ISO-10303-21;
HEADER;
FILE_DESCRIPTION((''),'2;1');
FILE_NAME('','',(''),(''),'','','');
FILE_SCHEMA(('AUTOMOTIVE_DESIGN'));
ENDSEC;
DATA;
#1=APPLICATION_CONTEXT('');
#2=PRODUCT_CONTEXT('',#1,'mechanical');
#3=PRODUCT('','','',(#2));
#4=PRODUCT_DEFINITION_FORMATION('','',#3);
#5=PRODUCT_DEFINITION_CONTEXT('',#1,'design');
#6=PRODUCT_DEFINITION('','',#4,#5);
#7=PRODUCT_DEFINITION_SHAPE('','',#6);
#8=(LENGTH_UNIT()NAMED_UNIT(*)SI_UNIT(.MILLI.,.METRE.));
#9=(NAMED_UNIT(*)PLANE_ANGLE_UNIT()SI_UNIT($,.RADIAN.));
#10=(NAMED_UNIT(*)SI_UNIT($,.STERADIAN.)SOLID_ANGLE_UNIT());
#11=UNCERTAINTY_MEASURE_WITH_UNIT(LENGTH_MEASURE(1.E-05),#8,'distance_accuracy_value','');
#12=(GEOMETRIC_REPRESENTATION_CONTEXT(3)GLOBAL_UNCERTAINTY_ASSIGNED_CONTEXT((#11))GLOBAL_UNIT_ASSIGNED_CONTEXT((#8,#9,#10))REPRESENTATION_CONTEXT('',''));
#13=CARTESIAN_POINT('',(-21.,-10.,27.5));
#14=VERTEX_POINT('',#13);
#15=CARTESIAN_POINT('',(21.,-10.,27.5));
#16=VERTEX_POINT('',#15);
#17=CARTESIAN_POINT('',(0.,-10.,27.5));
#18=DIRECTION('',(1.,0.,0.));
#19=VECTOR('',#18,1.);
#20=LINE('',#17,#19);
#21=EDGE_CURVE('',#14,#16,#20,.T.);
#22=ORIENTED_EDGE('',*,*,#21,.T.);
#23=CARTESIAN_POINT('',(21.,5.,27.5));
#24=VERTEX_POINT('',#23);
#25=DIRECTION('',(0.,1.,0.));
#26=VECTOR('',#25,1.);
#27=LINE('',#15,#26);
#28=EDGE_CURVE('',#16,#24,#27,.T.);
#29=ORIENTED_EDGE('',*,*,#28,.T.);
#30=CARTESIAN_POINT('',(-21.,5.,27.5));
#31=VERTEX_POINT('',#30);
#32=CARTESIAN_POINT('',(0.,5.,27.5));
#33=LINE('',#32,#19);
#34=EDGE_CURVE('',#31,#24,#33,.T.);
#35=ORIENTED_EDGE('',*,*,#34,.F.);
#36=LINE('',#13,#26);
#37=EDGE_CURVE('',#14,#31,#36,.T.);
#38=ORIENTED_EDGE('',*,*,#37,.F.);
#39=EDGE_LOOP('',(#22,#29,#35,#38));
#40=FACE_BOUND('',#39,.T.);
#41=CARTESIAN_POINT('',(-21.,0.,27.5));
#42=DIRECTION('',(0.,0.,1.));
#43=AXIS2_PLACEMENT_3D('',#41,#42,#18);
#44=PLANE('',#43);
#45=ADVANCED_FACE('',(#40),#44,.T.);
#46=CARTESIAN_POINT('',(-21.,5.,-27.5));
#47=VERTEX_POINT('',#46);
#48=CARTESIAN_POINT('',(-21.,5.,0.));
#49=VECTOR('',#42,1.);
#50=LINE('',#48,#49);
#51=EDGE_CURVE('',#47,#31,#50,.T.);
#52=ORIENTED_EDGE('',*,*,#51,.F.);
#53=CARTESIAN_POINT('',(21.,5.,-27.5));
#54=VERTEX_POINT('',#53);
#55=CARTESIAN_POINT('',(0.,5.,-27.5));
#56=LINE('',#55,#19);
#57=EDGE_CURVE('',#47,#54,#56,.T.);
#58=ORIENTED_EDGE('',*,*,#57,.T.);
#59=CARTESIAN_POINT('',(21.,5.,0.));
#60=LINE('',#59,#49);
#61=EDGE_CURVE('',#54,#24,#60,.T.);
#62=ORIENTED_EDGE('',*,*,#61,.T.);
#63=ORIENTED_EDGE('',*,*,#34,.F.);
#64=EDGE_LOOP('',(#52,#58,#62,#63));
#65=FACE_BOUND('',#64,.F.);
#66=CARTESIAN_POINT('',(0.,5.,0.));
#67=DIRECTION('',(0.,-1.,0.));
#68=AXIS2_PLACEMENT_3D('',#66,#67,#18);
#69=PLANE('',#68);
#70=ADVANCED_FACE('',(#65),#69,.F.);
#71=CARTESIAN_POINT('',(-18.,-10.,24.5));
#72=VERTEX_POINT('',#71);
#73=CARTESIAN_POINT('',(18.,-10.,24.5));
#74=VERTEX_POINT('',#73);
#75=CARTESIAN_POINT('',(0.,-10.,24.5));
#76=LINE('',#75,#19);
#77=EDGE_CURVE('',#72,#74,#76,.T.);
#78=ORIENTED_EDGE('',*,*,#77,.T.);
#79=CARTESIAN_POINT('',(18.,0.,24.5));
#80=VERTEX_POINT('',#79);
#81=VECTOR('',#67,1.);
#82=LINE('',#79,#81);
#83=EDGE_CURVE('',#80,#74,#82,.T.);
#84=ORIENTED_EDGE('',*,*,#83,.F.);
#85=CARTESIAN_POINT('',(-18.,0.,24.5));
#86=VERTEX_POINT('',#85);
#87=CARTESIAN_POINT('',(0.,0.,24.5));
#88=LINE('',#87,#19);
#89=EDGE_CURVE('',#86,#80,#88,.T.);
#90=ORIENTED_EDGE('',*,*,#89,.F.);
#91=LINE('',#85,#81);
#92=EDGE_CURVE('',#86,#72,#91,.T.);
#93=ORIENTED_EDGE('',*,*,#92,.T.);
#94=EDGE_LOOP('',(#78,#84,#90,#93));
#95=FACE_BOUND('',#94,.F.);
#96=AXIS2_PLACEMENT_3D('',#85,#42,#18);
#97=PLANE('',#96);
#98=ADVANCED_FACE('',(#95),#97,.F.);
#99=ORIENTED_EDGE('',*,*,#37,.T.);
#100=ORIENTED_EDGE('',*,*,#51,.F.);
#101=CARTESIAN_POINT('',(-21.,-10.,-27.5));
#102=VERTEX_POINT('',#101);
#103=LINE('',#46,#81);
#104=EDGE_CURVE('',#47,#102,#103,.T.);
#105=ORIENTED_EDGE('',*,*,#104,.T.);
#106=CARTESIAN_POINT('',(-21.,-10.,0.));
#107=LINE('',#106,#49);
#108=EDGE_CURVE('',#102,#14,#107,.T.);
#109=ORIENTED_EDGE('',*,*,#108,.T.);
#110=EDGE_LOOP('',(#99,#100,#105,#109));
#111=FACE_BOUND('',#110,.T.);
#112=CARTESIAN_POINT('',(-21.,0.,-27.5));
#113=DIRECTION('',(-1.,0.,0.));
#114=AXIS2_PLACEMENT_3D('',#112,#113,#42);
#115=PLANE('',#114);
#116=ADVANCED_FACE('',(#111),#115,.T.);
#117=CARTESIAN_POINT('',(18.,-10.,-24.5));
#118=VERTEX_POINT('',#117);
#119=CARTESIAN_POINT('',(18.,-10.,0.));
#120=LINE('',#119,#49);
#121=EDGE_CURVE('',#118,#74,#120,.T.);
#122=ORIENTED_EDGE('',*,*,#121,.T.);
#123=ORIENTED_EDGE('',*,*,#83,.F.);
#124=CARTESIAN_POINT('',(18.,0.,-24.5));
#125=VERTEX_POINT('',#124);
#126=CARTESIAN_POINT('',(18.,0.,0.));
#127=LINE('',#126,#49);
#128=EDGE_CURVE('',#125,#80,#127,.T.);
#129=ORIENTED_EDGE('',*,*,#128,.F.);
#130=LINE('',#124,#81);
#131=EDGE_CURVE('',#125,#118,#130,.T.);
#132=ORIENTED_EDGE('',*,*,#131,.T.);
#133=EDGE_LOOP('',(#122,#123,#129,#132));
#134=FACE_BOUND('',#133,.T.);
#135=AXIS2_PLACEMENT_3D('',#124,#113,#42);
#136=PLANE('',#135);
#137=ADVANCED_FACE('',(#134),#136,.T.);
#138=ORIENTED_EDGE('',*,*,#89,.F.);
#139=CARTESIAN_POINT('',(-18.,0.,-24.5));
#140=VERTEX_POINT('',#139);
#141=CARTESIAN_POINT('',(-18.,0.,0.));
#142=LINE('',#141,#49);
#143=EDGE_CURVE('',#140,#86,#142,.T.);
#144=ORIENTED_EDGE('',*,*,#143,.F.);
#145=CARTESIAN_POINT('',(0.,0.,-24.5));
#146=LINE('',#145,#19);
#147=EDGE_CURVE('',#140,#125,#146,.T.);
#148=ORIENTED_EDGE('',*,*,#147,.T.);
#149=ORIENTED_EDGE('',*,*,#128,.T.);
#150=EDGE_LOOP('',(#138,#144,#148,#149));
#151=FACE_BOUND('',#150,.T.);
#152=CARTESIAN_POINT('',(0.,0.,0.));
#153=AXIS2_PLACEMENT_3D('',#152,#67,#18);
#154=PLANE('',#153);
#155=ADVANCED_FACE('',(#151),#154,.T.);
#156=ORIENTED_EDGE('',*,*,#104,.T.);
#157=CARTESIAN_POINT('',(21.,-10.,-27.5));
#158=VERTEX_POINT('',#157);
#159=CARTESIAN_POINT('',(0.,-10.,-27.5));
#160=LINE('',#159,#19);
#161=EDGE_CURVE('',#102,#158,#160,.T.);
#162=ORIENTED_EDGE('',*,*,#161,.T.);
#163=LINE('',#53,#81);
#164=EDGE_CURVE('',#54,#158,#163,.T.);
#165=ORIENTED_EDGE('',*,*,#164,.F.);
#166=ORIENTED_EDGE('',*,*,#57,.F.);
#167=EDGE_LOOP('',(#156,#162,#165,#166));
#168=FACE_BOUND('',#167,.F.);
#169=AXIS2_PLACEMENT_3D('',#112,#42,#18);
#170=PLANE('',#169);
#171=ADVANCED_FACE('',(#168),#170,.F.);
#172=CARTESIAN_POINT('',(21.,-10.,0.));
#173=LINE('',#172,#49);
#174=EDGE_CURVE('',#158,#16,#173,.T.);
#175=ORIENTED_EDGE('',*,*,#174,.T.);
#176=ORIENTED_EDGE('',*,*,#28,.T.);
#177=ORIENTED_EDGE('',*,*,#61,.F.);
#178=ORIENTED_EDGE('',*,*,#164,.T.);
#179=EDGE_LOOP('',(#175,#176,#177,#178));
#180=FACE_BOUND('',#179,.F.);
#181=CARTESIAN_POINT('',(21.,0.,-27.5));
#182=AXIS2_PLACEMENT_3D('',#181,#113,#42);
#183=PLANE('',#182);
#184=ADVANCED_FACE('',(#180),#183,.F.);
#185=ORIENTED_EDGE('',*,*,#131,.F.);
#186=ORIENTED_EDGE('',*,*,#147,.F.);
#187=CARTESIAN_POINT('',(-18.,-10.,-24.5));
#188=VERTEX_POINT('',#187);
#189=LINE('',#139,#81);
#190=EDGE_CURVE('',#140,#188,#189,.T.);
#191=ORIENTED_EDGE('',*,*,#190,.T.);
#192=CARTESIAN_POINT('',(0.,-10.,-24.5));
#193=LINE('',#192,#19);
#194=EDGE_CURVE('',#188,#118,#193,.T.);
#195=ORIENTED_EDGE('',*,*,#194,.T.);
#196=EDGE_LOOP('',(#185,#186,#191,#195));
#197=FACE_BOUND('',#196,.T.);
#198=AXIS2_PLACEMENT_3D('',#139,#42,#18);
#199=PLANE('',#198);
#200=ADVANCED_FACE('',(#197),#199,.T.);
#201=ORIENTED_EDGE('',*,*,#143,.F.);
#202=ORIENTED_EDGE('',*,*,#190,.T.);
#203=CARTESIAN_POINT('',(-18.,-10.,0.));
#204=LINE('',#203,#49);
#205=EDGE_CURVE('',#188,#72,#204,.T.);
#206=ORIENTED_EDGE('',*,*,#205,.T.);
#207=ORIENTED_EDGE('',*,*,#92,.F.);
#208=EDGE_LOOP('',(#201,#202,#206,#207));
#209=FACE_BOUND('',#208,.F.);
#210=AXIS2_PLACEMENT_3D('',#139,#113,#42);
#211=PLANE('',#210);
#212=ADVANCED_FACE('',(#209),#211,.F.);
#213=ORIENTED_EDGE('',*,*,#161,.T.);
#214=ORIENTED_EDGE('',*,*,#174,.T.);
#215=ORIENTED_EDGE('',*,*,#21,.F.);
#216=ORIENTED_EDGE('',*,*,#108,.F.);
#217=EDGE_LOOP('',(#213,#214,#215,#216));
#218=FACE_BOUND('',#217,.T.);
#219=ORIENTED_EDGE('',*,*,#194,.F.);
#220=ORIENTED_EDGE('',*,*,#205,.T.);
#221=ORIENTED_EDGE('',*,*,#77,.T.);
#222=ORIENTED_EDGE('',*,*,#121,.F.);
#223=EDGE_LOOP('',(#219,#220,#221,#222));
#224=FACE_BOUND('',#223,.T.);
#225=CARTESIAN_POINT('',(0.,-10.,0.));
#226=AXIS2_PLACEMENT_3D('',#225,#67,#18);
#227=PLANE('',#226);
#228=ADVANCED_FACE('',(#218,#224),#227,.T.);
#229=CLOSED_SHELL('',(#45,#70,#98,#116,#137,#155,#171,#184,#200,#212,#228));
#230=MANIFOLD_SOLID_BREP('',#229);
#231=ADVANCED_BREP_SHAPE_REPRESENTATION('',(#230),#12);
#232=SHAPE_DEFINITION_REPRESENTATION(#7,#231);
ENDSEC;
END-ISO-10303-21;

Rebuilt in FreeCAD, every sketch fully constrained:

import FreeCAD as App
import Part
import Sketcher
Q = App.Units.Quantity

doc = App.newDocument("Part")
body = doc.addObject("PartDesign::Body", "Body")

sketch1 = body.newObject("Sketcher::SketchObject", "Sketch")
sketch1.AttachmentSupport = (doc.getObject("XZ_Plane"), [""])
sketch1.MapMode = "FlatFace"
sketch1.addGeometry([
    Part.LineSegment(App.Vector(-21, 27.5, 0), App.Vector(-21, -27.5, 0)),
    Part.LineSegment(App.Vector(-21, -27.5, 0), App.Vector(21, -27.5, 0)),
    Part.LineSegment(App.Vector(21, -27.5, 0), App.Vector(21, 27.5, 0)),
    Part.LineSegment(App.Vector(21, 27.5, 0), App.Vector(-21, 27.5, 0)),
], False)
sketch1.addConstraint([
    Sketcher.Constraint("Coincident", 0, 2, 1, 1),
    Sketcher.Constraint("Coincident", 1, 2, 2, 1),
    Sketcher.Constraint("Coincident", 2, 2, 3, 1),
    Sketcher.Constraint("Coincident", 3, 2, 0, 1),
    Sketcher.Constraint("Vertical", 0),
    Sketcher.Constraint("Horizontal", 1),
    Sketcher.Constraint("Vertical", 2),
    Sketcher.Constraint("Horizontal", 3),
    Sketcher.Constraint("Symmetric", 0, 2, 2, 2, -1, 1),
    Sketcher.Constraint("DistanceX", 1, 1, 1, 2, Q("42 mm")),
    Sketcher.Constraint("DistanceY", 0, 2, 0, 1, Q("55 mm")),
])
pad1 = body.newObject("PartDesign::Pad", "Pad")
pad1.Profile = sketch1
pad1.Length = 5
pad1.Reversed = True

sketch2 = body.newObject("Sketcher::SketchObject", "Sketch001")
sketch2.AttachmentSupport = (doc.getObject("XZ_Plane"), [""])
sketch2.MapMode = "FlatFace"
sketch2.addGeometry([
    Part.LineSegment(App.Vector(-21, 27.5, 0), App.Vector(-21, -27.5, 0)),
    Part.LineSegment(App.Vector(-21, -27.5, 0), App.Vector(21, -27.5, 0)),
    Part.LineSegment(App.Vector(21, -27.5, 0), App.Vector(21, 27.5, 0)),
    Part.LineSegment(App.Vector(21, 27.5, 0), App.Vector(-21, 27.5, 0)),
    Part.LineSegment(App.Vector(18, -24.5, 0), App.Vector(-18, -24.5, 0)),
    Part.LineSegment(App.Vector(-18, -24.5, 0), App.Vector(-18, 24.5, 0)),
    Part.LineSegment(App.Vector(-18, 24.5, 0), App.Vector(18, 24.5, 0)),
    Part.LineSegment(App.Vector(18, 24.5, 0), App.Vector(18, -24.5, 0)),
], False)
sketch2.addConstraint([
    Sketcher.Constraint("Coincident", 0, 2, 1, 1),
    Sketcher.Constraint("Coincident", 1, 2, 2, 1),
    Sketcher.Constraint("Coincident", 2, 2, 3, 1),
    Sketcher.Constraint("Coincident", 3, 2, 0, 1),
    Sketcher.Constraint("Coincident", 4, 2, 5, 1),
    Sketcher.Constraint("Coincident", 5, 2, 6, 1),
    Sketcher.Constraint("Coincident", 6, 2, 7, 1),
    Sketcher.Constraint("Coincident", 7, 2, 4, 1),
    Sketcher.Constraint("Vertical", 0),
    Sketcher.Constraint("Horizontal", 1),
    Sketcher.Constraint("Vertical", 2),
    Sketcher.Constraint("Horizontal", 3),
    Sketcher.Constraint("Horizontal", 4),
    Sketcher.Constraint("Vertical", 5),
    Sketcher.Constraint("Horizontal", 6),
    Sketcher.Constraint("Vertical", 7),
    Sketcher.Constraint("Symmetric", 0, 2, 2, 2, -1, 1),
    Sketcher.Constraint("Symmetric", 4, 2, 6, 2, -1, 1),
    Sketcher.Constraint("DistanceX", 1, 1, 1, 2, Q("42 mm")),
    Sketcher.Constraint("DistanceX", 4, 2, 4, 1, Q("36 mm")),
    Sketcher.Constraint("DistanceY", 0, 2, 0, 1, Q("55 mm")),
    Sketcher.Constraint("DistanceY", 5, 1, 5, 2, Q("49 mm")),
])
pad2 = body.newObject("PartDesign::Pad", "Pad001")
pad2.Profile = sketch2
pad2.Length = 10

doc.recompute()
